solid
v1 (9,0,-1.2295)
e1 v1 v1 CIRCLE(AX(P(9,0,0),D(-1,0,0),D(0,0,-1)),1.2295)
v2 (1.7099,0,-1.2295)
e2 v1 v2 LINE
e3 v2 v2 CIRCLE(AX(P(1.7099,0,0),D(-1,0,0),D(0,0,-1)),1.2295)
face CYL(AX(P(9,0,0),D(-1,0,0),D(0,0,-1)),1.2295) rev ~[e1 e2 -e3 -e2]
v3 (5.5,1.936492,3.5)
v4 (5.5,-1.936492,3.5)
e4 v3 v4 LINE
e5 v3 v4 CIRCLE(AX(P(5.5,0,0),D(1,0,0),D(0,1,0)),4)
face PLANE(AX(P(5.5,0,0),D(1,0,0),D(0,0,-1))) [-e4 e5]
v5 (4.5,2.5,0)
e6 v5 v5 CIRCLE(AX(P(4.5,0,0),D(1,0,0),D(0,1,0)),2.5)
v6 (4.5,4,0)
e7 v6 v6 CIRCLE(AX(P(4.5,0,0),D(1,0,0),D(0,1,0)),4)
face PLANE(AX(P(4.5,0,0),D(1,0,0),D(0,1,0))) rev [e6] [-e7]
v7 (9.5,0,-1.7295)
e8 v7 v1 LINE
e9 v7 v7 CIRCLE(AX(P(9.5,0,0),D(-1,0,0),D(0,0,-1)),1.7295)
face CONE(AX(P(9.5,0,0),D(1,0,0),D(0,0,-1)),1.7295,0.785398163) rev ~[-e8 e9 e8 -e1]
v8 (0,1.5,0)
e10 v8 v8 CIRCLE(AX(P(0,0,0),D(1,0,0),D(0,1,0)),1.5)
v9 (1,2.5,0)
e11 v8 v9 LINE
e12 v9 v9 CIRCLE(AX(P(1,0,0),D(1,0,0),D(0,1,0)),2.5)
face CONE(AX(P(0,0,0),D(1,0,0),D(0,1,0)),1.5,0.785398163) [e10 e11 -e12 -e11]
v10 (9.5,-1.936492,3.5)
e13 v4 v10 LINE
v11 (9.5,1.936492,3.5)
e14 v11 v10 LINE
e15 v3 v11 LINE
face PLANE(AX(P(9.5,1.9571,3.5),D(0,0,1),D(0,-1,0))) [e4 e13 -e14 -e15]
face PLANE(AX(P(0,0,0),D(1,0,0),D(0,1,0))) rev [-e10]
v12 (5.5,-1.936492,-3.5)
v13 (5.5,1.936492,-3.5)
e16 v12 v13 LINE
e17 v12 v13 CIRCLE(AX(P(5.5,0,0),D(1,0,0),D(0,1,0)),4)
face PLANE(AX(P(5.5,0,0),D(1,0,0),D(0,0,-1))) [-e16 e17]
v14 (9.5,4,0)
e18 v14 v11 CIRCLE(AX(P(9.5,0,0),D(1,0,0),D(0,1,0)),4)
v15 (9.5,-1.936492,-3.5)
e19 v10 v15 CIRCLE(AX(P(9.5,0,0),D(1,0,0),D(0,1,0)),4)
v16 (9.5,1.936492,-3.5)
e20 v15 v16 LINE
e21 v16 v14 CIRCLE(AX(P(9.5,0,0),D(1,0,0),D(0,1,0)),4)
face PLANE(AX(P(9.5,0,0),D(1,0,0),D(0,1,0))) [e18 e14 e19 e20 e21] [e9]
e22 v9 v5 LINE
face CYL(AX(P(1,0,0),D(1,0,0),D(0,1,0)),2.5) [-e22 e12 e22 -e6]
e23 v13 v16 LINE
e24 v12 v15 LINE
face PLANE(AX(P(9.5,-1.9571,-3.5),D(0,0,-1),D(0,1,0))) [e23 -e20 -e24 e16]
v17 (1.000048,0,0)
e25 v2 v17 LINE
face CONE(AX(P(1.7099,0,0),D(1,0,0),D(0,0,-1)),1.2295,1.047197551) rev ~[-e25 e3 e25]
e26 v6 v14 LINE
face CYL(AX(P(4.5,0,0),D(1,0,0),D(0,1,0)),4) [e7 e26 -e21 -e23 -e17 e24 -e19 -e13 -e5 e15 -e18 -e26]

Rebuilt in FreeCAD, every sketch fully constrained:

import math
import FreeCAD as App
import Part
import Sketcher

V = App.Vector
Q = App.Units.Quantity

doc = App.newDocument("Part")
body = doc.addObject("PartDesign::Body", "Body")

# Sketch on XY plane
sketch1 = body.newObject("Sketcher::SketchObject", "Sketch")
sketch1.AttachmentSupport = (doc.getObject("XY_Plane"), [""])
sketch1.MapMode = "FlatFace"
sketch1.addGeometry([
    Part.LineSegment(V(0, 0, 0), V(9.5, 0, 0)),  # 0
    Part.LineSegment(V(9.5, 0, 0), V(9.5, 4, 0)),  # 1
    Part.LineSegment(V(9.5, 4, 0), V(4.5, 4, 0)),  # 2
    Part.LineSegment(V(4.5, 4, 0), V(4.5, 2.5, 0)),  # 3
    Part.LineSegment(V(4.5, 2.5, 0), V(1, 2.5, 0)),  # 4
    Part.LineSegment(V(1, 2.5, 0), V(0, 1.5, 0)),  # 5
    Part.LineSegment(V(0, 1.5, 0), V(0, 0, 0)),  # 6
], False)
sketch1.addConstraint([
    Sketcher.Constraint("Coincident", 0, 2, 1, 1),
    Sketcher.Constraint("Coincident", 1, 2, 2, 1),
    Sketcher.Constraint("Coincident", 2, 2, 3, 1),
    Sketcher.Constraint("Coincident", 3, 2, 4, 1),
    Sketcher.Constraint("Coincident", 4, 2, 5, 1),
    Sketcher.Constraint("Coincident", 5, 2, 6, 1),
    Sketcher.Constraint("Coincident", 6, 2, 0, 1),
    Sketcher.Constraint("Horizontal", 0),
    Sketcher.Constraint("Vertical", 1),
    Sketcher.Constraint("Horizontal", 2),
    Sketcher.Constraint("Vertical", 3),
    Sketcher.Constraint("Horizontal", 4),
    Sketcher.Constraint("Vertical", 6),
    Sketcher.Constraint("Coincident", 6, 2, -1, 1),
    Sketcher.Constraint("Equal", 3, 6),
    Sketcher.Constraint("DistanceX", 2, 2, 2, 1, 5.0),
    Sketcher.Constraint("DistanceY", 1, 1, 1, 2, 4.0),
    Sketcher.Constraint("Angle", 5, Q("-135 deg")),
    Sketcher.Constraint("DistanceX", 0, 1, 0, 2, 9.5),
    Sketcher.Constraint("DistanceX", 4, 2, 4, 1, 3.5),
])
revolution = body.newObject("PartDesign::Revolution", "Revolution")
revolution.Profile = sketch1
revolution.ReferenceAxis = (sketch1, ["H_Axis"])
revolution.Angle = 360

# Sketch on YZ plane
sketch2 = body.newObject("Sketcher::SketchObject", "Sketch001")
sketch2.AttachmentSupport = (doc.getObject("YZ_Plane"), [""])
sketch2.MapMode = "FlatFace"
sketch2.AttachmentOffset = App.Placement(V(0, 0, 9.5), App.Rotation())
sketch2.addGeometry(Part.Circle(V(0, 0, 0), V(0, 0, 1), 1.2), False)
sketch2.addConstraint([
    Sketcher.Constraint("Coincident", 0, 3, -1, 1),
    Sketcher.Constraint("Diameter", 0, 2.459),
])
doc.recompute()
hole = body.newObject("PartDesign::Hole", "Hole")
hole.Profile = sketch2
hole.ThreadType = "None"
hole.Diameter = 2.459
hole.DepthType = "Dimension"
hole.Depth = 7.7901
hole.DrillPoint = "Angled"
hole.DrillPointAngle = 120
hole.HoleCutType = "Countersink"
hole.HoleCutDiameter = 3.459
hole.HoleCutCountersinkAngle = 90

# Sketch on YZ plane
sketch3 = body.newObject("Sketcher::SketchObject", "Sketch002")
sketch3.AttachmentSupport = (doc.getObject("YZ_Plane"), [""])
sketch3.MapMode = "FlatFace"
sketch3.AttachmentOffset = App.Placement(V(0, 0, 9.5), App.Rotation())
sketch3.addGeometry([
    Part.LineSegment(V(7, -7, 0), V(7, 7, 0)),  # 0
    Part.LineSegment(V(7, 7, 0), V(-7, 7, 0)),  # 1
    Part.LineSegment(V(-7, 7, 0), V(-7, -7, 0)),  # 2
    Part.LineSegment(V(-7, -7, 0), V(7, -7, 0)),  # 3
    Part.LineSegment(V(-2, 3.5, 0), V(2, 3.5, 0)),  # 4
    Part.ArcOfCircle(Part.Circle(V(0, 0, 0), V(0, 0, 1), 4), math.radians(-61), math.radians(61)),  # 5
    Part.LineSegment(V(2, -3.5, 0), V(-2, -3.5, 0)),  # 6
    Part.ArcOfCircle(Part.Circle(V(0, 0, 0), V(0, 0, 1), 4), math.radians(119), math.radians(241)),  # 7
], False)
sketch3.addConstraint([
    Sketcher.Constraint("Coincident", 0, 2, 1, 1),
    Sketcher.Constraint("Coincident", 1, 2, 2, 1),
    Sketcher.Constraint("Coincident", 2, 2, 3, 1),
    Sketcher.Constraint("Coincident", 3, 2, 0, 1),
    Sketcher.Constraint("Coincident", 4, 2, 5, 2),
    Sketcher.Constraint("Coincident", 5, 1, 6, 1),
    Sketcher.Constraint("Coincident", 6, 2, 7, 2),
    Sketcher.Constraint("Coincident", 7, 1, 4, 1),
    Sketcher.Constraint("Vertical", 0),
    Sketcher.Constraint("Horizontal", 1),
    Sketcher.Constraint("Vertical", 2),
    Sketcher.Constraint("Horizontal", 3),
    Sketcher.Constraint("Horizontal", 4),
    Sketcher.Constraint("Horizontal", 6),
    Sketcher.Constraint("Coincident", 5, 3, -1, 1),
    Sketcher.Constraint("Coincident", 7, 3, -1, 1),
    Sketcher.Constraint("Equal", 5, 7),
    Sketcher.Constraint("Symmetric", 0, 2, 2, 2, -1, 1),
    Sketcher.Constraint("Vertical", 4, 2, 5, 1),
    Sketcher.Constraint("Equal", 3, 0),
    Sketcher.Constraint("DistanceX", 1, 2, 1, 1, 14.0),
    Sketcher.Constraint("Radius", 5, 4.01),
    Sketcher.Constraint("DistanceY", 5, 1, 4, 2, 7.0),
])
pocket1 = body.newObject("PartDesign::Pocket", "Pocket")
pocket1.Profile = sketch3
pocket1.Length = 4

doc.recompute()
